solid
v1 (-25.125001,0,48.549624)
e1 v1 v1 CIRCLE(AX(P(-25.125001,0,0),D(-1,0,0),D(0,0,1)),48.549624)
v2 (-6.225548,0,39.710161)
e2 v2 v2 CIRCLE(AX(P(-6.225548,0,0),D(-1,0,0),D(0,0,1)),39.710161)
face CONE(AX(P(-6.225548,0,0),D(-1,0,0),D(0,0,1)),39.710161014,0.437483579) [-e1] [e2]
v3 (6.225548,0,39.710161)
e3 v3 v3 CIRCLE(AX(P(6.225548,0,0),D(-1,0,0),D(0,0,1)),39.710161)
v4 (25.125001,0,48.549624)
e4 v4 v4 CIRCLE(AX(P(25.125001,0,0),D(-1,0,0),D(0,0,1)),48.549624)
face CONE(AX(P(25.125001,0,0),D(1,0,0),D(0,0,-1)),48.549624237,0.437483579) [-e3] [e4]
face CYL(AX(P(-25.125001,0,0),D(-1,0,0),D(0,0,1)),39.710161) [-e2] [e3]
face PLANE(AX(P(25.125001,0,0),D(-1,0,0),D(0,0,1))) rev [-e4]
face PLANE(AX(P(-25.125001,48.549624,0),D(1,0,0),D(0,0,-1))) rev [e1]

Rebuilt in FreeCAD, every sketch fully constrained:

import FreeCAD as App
import Part
import Sketcher

V = App.Vector

doc = App.newDocument("Part")
body = doc.addObject("PartDesign::Body", "Body")

# Sketch on XY plane
sketch1 = body.newObject("Sketcher::SketchObject", "Sketch")
sketch1.AttachmentSupport = (doc.getObject("XY_Plane"), [""])
sketch1.MapMode = "FlatFace"
sketch1.addGeometry(Part.LineSegment(V(-25.125001, 0, 0), V(25.125001, 0, 0)), False)
sketch1.addGeometry(Part.LineSegment(V(25.125001, 0, 0), V(25.125001, 48.549624, 0)), False)
sketch1.addGeometry(Part.LineSegment(V(25.125001, 48.549624, 0), V(6.225548, 39.710161, 0)), False)
sketch1.addGeometry(Part.LineSegment(V(6.225548, 39.710161, 0), V(-6.225548, 39.710161, 0)), False)
sketch1.addGeometry(Part.LineSegment(V(-6.225548, 39.710161, 0), V(-25.125001, 48.549624, 0)), False)
sketch1.addGeometry(Part.LineSegment(V(-25.125001, 48.549624, 0), V(-25.125001, 0, 0)), False)
sketch1.addConstraint(Sketcher.Constraint("Coincident", 0, 2, 1, 1))
sketch1.addConstraint(Sketcher.Constraint("Coincident", 1, 2, 2, 1))
sketch1.addConstraint(Sketcher.Constraint("Coincident", 2, 2, 3, 1))
sketch1.addConstraint(Sketcher.Constraint("Coincident", 3, 2, 4, 1))
sketch1.addConstraint(Sketcher.Constraint("Coincident", 4, 2, 5, 1))
sketch1.addConstraint(Sketcher.Constraint("Coincident", 5, 2, 0, 1))
sketch1.addConstraint(Sketcher.Constraint("Horizontal", 0))
sketch1.addConstraint(Sketcher.Constraint("Vertical", 1))
sketch1.addConstraint(Sketcher.Constraint("Horizontal", 3))
sketch1.addConstraint(Sketcher.Constraint("Vertical", 5))
sketch1.addConstraint(Sketcher.Constraint("Symmetric", 0, 2, 5, 2, -1, 1))
sketch1.addConstraint(Sketcher.Constraint("Horizontal", 1, 2, 4, 2))
sketch1.addConstraint(Sketcher.Constraint("Equal", 2, 4))
sketch1.addConstraint(Sketcher.Constraint("DistanceX", -1, 1, 0, 2, 25.125001))
sketch1.addConstraint(Sketcher.Constraint("DistanceX", 3, 2, 3, 1, 12.451097))
sketch1.addConstraint(Sketcher.Constraint("DistanceY", 1, 1, 1, 2, 48.549624))
sketch1.addConstraint(Sketcher.Constraint("DistanceY", -1, 1, 2, 2, 39.710161))
revolution = body.newObject("PartDesign::Revolution", "Revolution")
revolution.Profile = sketch1
revolution.ReferenceAxis = (sketch1, ["H_Axis"])
revolution.Angle = 360

doc.recompute()
